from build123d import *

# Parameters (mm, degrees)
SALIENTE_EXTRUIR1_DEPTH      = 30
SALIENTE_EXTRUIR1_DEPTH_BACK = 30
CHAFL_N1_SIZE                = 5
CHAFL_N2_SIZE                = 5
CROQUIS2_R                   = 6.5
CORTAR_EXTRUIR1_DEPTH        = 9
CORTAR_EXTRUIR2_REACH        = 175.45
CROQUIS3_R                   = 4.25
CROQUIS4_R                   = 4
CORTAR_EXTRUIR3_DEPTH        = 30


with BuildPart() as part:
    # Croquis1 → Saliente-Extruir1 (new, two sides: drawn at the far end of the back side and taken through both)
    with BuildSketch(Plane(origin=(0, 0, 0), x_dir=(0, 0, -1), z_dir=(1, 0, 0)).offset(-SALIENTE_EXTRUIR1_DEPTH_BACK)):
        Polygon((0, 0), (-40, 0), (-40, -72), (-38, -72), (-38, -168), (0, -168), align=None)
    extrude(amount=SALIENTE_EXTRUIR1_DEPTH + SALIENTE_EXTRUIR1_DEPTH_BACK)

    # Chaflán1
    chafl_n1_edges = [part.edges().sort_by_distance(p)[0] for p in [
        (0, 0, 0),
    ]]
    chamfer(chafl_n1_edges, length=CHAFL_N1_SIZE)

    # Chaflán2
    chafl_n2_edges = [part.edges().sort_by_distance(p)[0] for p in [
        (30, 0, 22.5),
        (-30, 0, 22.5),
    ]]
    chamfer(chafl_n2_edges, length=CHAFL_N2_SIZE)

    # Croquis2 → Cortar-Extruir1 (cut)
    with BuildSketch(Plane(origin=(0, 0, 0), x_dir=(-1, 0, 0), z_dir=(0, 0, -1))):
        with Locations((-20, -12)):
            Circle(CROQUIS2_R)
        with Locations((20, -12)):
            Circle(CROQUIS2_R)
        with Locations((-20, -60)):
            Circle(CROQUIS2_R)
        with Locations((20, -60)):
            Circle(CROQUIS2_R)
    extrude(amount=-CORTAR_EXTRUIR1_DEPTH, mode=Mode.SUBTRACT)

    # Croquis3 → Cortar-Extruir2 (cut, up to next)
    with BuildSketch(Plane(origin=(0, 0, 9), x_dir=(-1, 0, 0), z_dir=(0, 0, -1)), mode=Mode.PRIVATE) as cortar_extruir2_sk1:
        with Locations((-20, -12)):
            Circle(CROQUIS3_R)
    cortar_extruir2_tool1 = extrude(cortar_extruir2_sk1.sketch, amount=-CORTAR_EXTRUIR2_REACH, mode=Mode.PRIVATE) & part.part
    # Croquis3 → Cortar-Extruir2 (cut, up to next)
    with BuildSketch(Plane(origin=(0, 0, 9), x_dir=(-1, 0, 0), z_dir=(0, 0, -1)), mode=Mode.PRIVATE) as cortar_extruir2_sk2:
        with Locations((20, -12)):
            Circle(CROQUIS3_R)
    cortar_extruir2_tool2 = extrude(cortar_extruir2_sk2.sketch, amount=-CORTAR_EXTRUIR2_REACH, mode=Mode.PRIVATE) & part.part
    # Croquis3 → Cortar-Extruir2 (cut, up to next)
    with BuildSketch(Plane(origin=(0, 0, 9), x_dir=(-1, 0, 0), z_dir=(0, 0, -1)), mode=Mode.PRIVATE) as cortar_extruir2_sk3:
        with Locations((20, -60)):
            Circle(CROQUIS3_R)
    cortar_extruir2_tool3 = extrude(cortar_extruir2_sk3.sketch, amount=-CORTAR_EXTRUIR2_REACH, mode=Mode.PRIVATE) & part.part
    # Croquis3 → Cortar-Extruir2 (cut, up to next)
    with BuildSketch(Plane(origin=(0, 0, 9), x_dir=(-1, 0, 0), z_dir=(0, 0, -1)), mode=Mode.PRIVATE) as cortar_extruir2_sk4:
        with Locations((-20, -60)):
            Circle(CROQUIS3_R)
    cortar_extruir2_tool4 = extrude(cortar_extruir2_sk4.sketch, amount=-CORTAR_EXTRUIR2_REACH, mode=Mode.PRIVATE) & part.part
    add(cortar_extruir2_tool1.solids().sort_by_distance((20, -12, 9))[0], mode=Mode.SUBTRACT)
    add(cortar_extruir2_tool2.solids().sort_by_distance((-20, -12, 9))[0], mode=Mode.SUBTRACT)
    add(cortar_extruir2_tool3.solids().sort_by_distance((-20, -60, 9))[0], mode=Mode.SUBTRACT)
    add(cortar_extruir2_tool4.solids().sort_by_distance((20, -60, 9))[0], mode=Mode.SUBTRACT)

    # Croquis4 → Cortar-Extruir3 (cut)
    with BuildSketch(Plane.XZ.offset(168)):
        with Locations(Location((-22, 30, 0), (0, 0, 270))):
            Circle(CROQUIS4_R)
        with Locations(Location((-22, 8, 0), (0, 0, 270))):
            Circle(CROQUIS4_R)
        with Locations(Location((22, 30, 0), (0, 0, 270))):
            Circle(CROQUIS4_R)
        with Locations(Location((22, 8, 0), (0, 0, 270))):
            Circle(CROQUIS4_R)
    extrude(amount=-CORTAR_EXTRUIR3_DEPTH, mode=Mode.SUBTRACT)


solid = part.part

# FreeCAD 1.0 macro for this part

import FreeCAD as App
import Part
import Sketcher
Q = App.Units.Quantity


def edges_at(feature, points):
    """Names of the edges that pass closest to the given points."""
    edges = feature.Shape.Edges
    near = lambda p: min(range(len(edges)), key=lambda i: edges[i].distToShape(Part.Vertex(*p))[0])
    return sorted({f"Edge{near(p) + 1}" for p in points})

doc = App.newDocument("Part")
body = doc.addObject("PartDesign::Body", "Body")

# Sketch on YZ plane
sketch1 = body.newObject("Sketcher::SketchObject", "Sketch")
sketch1.AttachmentSupport = (doc.getObject("YZ_Plane"), [""])
sketch1.MapMode = "FlatFace"
sketch1.addGeometry([
    Part.LineSegment(App.Vector(0, 0, 0), App.Vector(0, 40, 0)),  # 0
    Part.LineSegment(App.Vector(0, 40, 0), App.Vector(-72, 40, 0)),  # 1
    Part.LineSegment(App.Vector(-72, 40, 0), App.Vector(-72, 38, 0)),  # 2
    Part.LineSegment(App.Vector(-72, 38, 0), App.Vector(-168, 38, 0)),  # 3
    Part.LineSegment(App.Vector(-168, 38, 0), App.Vector(-168, 0, 0)),  # 4
    Part.LineSegment(App.Vector(-168, 0, 0), App.Vector(0, 0, 0)),  # 5
], False)
sketch1.addConstraint([
    Sketcher.Constraint("Coincident", 0, 2, 1, 1),
    Sketcher.Constraint("Coincident", 1, 2, 2, 1),
    Sketcher.Constraint("Coincident", 2, 2, 3, 1),
    Sketcher.Constraint("Coincident", 3, 2, 4, 1),
    Sketcher.Constraint("Coincident", 4, 2, 5, 1),
    Sketcher.Constraint("Coincident", 5, 2, 0, 1),
    Sketcher.Constraint("Vertical", 0),
    Sketcher.Constraint("Horizontal", 1),
    Sketcher.Constraint("Vertical", 2),
    Sketcher.Constraint("Horizontal", 3),
    Sketcher.Constraint("Vertical", 4),
    Sketcher.Constraint("Horizontal", 5),
    Sketcher.Constraint("Coincident", 5, 2, -1, 1),
    Sketcher.Constraint("DistanceX", 1, 2, 1, 1, Q("72 mm")),
    Sketcher.Constraint("DistanceX", 3, 2, 3, 1, Q("96 mm")),
    Sketcher.Constraint("DistanceY", 0, 1, 0, 2, Q("40 mm")),
    Sketcher.Constraint("DistanceY", 2, 2, 2, 1, Q("2 mm")),
])
pad1 = body.newObject("PartDesign::Pad", "Pad")
pad1.Profile = sketch1
pad1.Type = "TwoLengths"
pad1.Length = 30
pad1.Length2 = 30
doc.recompute()

chamfer = body.newObject("PartDesign::Chamfer", "Chamfer")
chamfer.Base = (pad1, edges_at(pad1, [(0, 0, 0)]))
chamfer.Size = 5
doc.recompute()

chamfer2 = body.newObject("PartDesign::Chamfer", "Chamfer001")
chamfer2.Base = (chamfer, edges_at(chamfer, [(30, 0, 22.5), (-30, 0, 22.5)]))
chamfer2.Size = 5

# Sketch on XY plane
sketch2 = body.newObject("Sketcher::SketchObject", "Sketch001")
sketch2.AttachmentSupport = (doc.getObject("XY_Plane"), [""])
sketch2.MapMode = "FlatFace"
sketch2.addGeometry([
    Part.Circle(App.Vector(20, -12, 0), App.Vector(0, 0, 1), 6),
    Part.Circle(App.Vector(-20, -12, 0), App.Vector(0, 0, 1), 6),
    Part.Circle(App.Vector(20, -60, 0), App.Vector(0, 0, 1), 6),
    Part.Circle(App.Vector(-20, -60, 0), App.Vector(0, 0, 1), 6),
], False)
sketch2.addConstraint([
    Sketcher.Constraint("Equal", 0, 1),
    Sketcher.Constraint("Equal", 1, 2),
    Sketcher.Constraint("Equal", 2, 3),
    Sketcher.Constraint("Symmetric", 0, 3, 1, 3, -2),
    Sketcher.Constraint("Symmetric", 2, 3, 3, 3, -2),
    Sketcher.Constraint("Vertical", 0, 3, 2, 3),
    Sketcher.Constraint("Diameter", 0, Q("13 mm")),
    Sketcher.Constraint("DistanceX", -1, 1, 0, 3, Q("20 mm")),
    Sketcher.Constraint("DistanceY", 0, 3, -1, 1, Q("12 mm")),
    Sketcher.Constraint("DistanceY", 2, 3, -1, 1, Q("60 mm")),
])
pocket1 = body.newObject("PartDesign::Pocket", "Pocket")
pocket1.Profile = sketch2
pocket1.Length = 9
pocket1.Reversed = True

# Sketch on XY plane
sketch3 = body.newObject("Sketcher::SketchObject", "Sketch002")
sketch3.AttachmentSupport = (doc.getObject("XY_Plane"), [""])
sketch3.MapMode = "FlatFace"
sketch3.AttachmentOffset = App.Placement(App.Vector(0, 0, 9), App.Rotation())
sketch3.addGeometry(Part.Circle(App.Vector(20, -12, 0), App.Vector(0, 0, 1), 4.2), False)
sketch3.addConstraint([
    Sketcher.Constraint("Diameter", 0, Q("8.5 mm")),
    Sketcher.Constraint("DistanceX", -1, 1, 0, 3, Q("20 mm")),
    Sketcher.Constraint("DistanceY", 0, 3, -1, 1, Q("12 mm")),
])
pocket2 = body.newObject("PartDesign::Pocket", "Pocket001")
pocket2.Profile = sketch3
pocket2.Type = "UpToFirst"
pocket2.Reversed = True

# Sketch on XY plane
sketch4 = body.newObject("Sketcher::SketchObject", "Sketch003")
sketch4.AttachmentSupport = (doc.getObject("XY_Plane"), [""])
sketch4.MapMode = "FlatFace"
sketch4.AttachmentOffset = App.Placement(App.Vector(0, 0, 9), App.Rotation())
sketch4.addGeometry(Part.Circle(App.Vector(-20, -12, 0), App.Vector(0, 0, 1), 4.2), False)
sketch4.addConstraint([
    Sketcher.Constraint("Diameter", 0, Q("8.5 mm")),
    Sketcher.Constraint("DistanceX", 0, 3, -1, 1, Q("20 mm")),
    Sketcher.Constraint("DistanceY", 0, 3, -1, 1, Q("12 mm")),
])
pocket3 = body.newObject("PartDesign::Pocket", "Pocket002")
pocket3.Profile = sketch4
pocket3.Type = "UpToFirst"
pocket3.Reversed = True

# Sketch on XY plane
sketch5 = body.newObject("Sketcher::SketchObject", "Sketch004")
sketch5.AttachmentSupport = (doc.getObject("XY_Plane"), [""])
sketch5.MapMode = "FlatFace"
sketch5.AttachmentOffset = App.Placement(App.Vector(0, 0, 9), App.Rotation())
sketch5.addGeometry(Part.Circle(App.Vector(-20, -60, 0), App.Vector(0, 0, 1), 4.2), False)
sketch5.addConstraint([
    Sketcher.Constraint("Diameter", 0, Q("8.5 mm")),
    Sketcher.Constraint("DistanceX", 0, 3, -1, 1, Q("20 mm")),
    Sketcher.Constraint("DistanceY", 0, 3, -1, 1, Q("60 mm")),
])
pocket4 = body.newObject("PartDesign::Pocket", "Pocket003")
pocket4.Profile = sketch5
pocket4.Type = "UpToFirst"
pocket4.Reversed = True

# Sketch on XY plane
sketch6 = body.newObject("Sketcher::SketchObject", "Sketch005")
sketch6.AttachmentSupport = (doc.getObject("XY_Plane"), [""])
sketch6.MapMode = "FlatFace"
sketch6.AttachmentOffset = App.Placement(App.Vector(0, 0, 9), App.Rotation())
sketch6.addGeometry(Part.Circle(App.Vector(20, -60, 0), App.Vector(0, 0, 1), 4.2), False)
sketch6.addConstraint([
    Sketcher.Constraint("Diameter", 0, Q("8.5 mm")),
    Sketcher.Constraint("DistanceX", -1, 1, 0, 3, Q("20 mm")),
    Sketcher.Constraint("DistanceY", 0, 3, -1, 1, Q("60 mm")),
])
pocket5 = body.newObject("PartDesign::Pocket", "Pocket004")
pocket5.Profile = sketch6
pocket5.Type = "UpToFirst"
pocket5.Reversed = True

# Sketch on XZ plane
sketch7 = body.newObject("Sketcher::SketchObject", "Sketch006")
sketch7.AttachmentSupport = (doc.getObject("XZ_Plane"), [""])
sketch7.MapMode = "FlatFace"
sketch7.AttachmentOffset = App.Placement(App.Vector(0, 0, 168), App.Rotation())
sketch7.addGeometry([
    Part.Circle(App.Vector(-22, 30, 0), App.Vector(0, 0, 1), 4),
    Part.Circle(App.Vector(-22, 8, 0), App.Vector(0, 0, 1), 4),
    Part.Circle(App.Vector(22, 30, 0), App.Vector(0, 0, 1), 4),
    Part.Circle(App.Vector(22, 8, 0), App.Vector(0, 0, 1), 4),
], False)
sketch7.addConstraint([
    Sketcher.Constraint("Equal", 0, 1),
    Sketcher.Constraint("Equal", 1, 2),
    Sketcher.Constraint("Equal", 2, 3),
    Sketcher.Constraint("Symmetric", 0, 3, 2, 3, -2),
    Sketcher.Constraint("Symmetric", 1, 3, 3, 3, -2),
    Sketcher.Constraint("Vertical", 0, 3, 1, 3),
    Sketcher.Constraint("Diameter", 0, Q("8 mm")),
    Sketcher.Constraint("DistanceX", 0, 3, -1, 1, Q("22 mm")),
    Sketcher.Constraint("DistanceY", -1, 1, 0, 3, Q("30 mm")),
    Sketcher.Constraint("DistanceY", -1, 1, 1, 3, Q("8 mm")),
])
pocket6 = body.newObject("PartDesign::Pocket", "Pocket005")
pocket6.Profile = sketch7
pocket6.Length = 30

doc.recompute()
